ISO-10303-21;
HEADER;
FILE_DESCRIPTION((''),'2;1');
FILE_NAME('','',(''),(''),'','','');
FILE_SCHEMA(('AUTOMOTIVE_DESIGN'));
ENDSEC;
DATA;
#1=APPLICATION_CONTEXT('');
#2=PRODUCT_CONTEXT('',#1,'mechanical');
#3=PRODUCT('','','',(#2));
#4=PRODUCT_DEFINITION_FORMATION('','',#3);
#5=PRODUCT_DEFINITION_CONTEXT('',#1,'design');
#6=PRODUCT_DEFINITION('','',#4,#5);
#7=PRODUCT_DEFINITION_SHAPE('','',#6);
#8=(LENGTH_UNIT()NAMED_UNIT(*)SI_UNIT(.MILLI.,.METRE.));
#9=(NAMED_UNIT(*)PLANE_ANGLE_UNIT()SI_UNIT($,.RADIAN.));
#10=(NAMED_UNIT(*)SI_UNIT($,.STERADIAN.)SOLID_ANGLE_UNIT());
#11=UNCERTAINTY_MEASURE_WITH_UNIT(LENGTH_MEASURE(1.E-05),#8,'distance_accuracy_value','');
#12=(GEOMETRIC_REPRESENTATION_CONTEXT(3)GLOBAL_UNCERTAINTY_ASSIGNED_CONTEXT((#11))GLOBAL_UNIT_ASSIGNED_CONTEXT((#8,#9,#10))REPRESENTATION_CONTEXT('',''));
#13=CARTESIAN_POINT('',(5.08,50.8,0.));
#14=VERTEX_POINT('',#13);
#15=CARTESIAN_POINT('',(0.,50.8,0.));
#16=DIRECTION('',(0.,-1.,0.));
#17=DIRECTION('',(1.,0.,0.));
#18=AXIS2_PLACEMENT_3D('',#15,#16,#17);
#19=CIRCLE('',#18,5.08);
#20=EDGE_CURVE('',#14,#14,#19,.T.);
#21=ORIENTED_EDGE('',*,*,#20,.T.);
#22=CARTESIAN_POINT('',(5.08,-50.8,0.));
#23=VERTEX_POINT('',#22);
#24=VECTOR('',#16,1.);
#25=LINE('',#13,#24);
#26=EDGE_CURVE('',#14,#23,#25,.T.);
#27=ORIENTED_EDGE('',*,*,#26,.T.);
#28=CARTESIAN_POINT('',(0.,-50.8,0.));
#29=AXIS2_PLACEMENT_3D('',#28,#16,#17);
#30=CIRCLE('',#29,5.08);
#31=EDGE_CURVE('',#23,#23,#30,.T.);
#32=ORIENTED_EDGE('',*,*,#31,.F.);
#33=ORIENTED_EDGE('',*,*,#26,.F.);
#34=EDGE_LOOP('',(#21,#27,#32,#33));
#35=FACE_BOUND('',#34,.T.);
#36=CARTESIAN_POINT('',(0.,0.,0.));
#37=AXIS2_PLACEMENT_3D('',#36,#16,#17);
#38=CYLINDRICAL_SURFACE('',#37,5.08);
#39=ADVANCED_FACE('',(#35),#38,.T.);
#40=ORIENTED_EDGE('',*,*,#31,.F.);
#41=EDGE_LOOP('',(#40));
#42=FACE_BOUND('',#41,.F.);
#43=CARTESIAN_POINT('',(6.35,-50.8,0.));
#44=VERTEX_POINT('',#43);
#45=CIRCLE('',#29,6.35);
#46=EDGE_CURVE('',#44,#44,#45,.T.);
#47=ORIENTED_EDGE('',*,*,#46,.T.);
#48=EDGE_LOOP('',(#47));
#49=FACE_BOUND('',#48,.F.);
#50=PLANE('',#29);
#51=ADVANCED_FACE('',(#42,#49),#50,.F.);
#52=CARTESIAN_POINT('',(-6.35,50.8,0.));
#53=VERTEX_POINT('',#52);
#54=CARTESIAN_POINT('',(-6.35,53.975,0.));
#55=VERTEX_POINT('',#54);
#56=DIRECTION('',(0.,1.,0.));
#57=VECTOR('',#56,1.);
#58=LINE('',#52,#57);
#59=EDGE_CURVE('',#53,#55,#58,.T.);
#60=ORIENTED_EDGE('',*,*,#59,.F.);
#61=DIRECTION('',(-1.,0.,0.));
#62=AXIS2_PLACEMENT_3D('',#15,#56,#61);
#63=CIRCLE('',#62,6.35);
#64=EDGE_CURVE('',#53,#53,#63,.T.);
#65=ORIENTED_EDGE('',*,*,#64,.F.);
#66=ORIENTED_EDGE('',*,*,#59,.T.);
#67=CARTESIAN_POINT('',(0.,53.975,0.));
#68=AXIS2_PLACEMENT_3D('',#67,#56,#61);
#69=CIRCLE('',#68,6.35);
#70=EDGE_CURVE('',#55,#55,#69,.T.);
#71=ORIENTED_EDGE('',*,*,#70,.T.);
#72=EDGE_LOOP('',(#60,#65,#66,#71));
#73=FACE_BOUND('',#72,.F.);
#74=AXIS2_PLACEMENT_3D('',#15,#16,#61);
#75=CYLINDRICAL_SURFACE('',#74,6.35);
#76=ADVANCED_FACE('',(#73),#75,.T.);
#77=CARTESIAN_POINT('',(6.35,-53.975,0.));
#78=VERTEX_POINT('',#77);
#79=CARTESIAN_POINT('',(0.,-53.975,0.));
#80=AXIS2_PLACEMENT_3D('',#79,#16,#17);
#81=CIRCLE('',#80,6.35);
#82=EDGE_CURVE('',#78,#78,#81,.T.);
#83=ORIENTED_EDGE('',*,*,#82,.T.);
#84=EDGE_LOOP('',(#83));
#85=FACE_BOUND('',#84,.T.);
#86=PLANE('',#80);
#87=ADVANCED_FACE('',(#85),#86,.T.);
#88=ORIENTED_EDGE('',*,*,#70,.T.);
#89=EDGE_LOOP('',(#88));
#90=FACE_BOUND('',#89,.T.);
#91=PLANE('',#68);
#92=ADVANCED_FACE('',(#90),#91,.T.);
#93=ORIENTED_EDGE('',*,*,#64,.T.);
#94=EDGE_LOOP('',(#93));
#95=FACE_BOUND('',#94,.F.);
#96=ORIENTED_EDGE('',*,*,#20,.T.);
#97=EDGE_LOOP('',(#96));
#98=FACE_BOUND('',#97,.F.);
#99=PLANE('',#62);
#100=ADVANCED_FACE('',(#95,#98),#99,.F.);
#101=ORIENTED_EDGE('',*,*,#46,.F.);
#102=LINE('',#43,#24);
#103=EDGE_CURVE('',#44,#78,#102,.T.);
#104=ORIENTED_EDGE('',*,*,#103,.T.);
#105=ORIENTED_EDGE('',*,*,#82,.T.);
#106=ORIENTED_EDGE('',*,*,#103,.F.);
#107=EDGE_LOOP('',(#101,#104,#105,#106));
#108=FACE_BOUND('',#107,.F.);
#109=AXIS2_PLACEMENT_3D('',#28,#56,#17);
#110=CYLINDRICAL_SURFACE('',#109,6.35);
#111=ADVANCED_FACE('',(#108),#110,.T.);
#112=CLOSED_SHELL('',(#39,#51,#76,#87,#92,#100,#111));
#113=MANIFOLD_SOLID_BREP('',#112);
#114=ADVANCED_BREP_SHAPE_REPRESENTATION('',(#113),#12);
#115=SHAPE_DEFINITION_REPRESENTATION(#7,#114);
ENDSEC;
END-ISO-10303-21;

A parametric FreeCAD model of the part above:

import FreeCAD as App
import Part
import Sketcher

V = App.Vector
Q = App.Units.Quantity

doc = App.newDocument("Part")
params = doc.addObject("Spreadsheet::Sheet", "Params")
for row, (alias, value) in enumerate([
    ("sketch1_diameter", "0.4 in"),
    ("pad1_length", "4 in"),
    ("sketch2_diameter", "0.5 in"),
    ("pad2_length", "0.125 in"),
    ("sketch3_diameter", "0.5 in"),
    ("pad3_length", "0.125 in"),
], start=1):
    params.set(f"A{row}", alias)
    params.set(f"B{row}", "=" + value)
    params.setAlias(f"B{row}", alias)

body = doc.addObject("PartDesign::Body", "Body")

sketch1 = doc.addObject("Sketcher::SketchObject", "Sketch")
body.addObject(sketch1)
sketch1.AttachmentSupport = (doc.XZ_Plane, [""])
sketch1.MapMode = "FlatFace"
sketch1.addGeometry(Part.Circle(V(0, 0, 0), V(0, 0, 1), 5.08), False)
sketch1.addConstraint([
    Sketcher.Constraint("Coincident", 0, 3, -1, 1),
    Sketcher.Constraint("Diameter", 0, Q("0.4 in")),
])
sketch1.setExpression("Constraints[1]", "Params.sketch1_diameter")
pad1 = doc.addObject("PartDesign::Pad", "Pad")
body.addObject(pad1)
pad1.Profile = sketch1
pad1.setExpression("Length", "Params.pad1_length")
pad1.Midplane = True

sketch2 = doc.addObject("Sketcher::SketchObject", "Sketch001")
body.addObject(sketch2)
sketch2.AttachmentSupport = (doc.XZ_Plane, [""])
sketch2.MapMode = "FlatFace"
sketch2.AttachmentOffset = App.Placement(V(0, 0, 2 * 25.4), App.Rotation())
sketch2.addGeometry(Part.Circle(V(0, 0, 0), V(0, 0, 1), 6.35), False)
sketch2.addConstraint([
    Sketcher.Constraint("Coincident", 0, 3, -1, 1),
    Sketcher.Constraint("Diameter", 0, Q("0.5 in")),
])
sketch2.setExpression("Constraints[1]", "Params.sketch2_diameter")
pad2 = doc.addObject("PartDesign::Pad", "Pad001")
body.addObject(pad2)
pad2.Profile = sketch2
pad2.setExpression("Length", "Params.pad2_length")

sketch3 = doc.addObject("Sketcher::SketchObject", "Sketch002")
body.addObject(sketch3)
sketch3.AttachmentSupport = (doc.XZ_Plane, [""])
sketch3.MapMode = "FlatFace"
sketch3.AttachmentOffset = App.Placement(V(0, 0, -2 * 25.4), App.Rotation())
sketch3.addGeometry(Part.Circle(V(0, 0, 0), V(0, 0, 1), 6.35), False)
sketch3.addConstraint([
    Sketcher.Constraint("Coincident", 0, 3, -1, 1),
    Sketcher.Constraint("Diameter", 0, Q("0.5 in")),
])
sketch3.setExpression("Constraints[1]", "Params.sketch3_diameter")
pad3 = doc.addObject("PartDesign::Pad", "Pad002")
body.addObject(pad3)
pad3.Profile = sketch3
pad3.setExpression("Length", "Params.pad3_length")
pad3.Reversed = True

doc.recompute()
